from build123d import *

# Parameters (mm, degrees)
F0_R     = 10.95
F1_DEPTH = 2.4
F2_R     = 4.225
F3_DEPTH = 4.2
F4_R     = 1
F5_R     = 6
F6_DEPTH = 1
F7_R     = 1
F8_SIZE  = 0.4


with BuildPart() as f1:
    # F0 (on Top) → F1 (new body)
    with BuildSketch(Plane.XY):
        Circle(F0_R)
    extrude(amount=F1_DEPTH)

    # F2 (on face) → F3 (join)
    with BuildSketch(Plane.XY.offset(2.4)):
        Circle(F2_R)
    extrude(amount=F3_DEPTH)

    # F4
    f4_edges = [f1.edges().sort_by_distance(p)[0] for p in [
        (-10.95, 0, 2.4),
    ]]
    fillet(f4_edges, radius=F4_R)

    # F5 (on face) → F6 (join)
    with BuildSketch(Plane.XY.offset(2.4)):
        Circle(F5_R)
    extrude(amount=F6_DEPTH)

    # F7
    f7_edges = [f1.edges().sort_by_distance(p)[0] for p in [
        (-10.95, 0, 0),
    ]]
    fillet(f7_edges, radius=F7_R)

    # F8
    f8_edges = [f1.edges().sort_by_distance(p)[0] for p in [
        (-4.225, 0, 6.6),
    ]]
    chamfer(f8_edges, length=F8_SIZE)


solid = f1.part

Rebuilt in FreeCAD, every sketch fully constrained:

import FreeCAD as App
import Part
import Sketcher
Q = App.Units.Quantity


def edges_at(feature, points):
    """Names of the edges that pass closest to the given points."""
    edges = feature.Shape.Edges
    near = lambda p: min(range(len(edges)), key=lambda i: edges[i].distToShape(Part.Vertex(*p))[0])
    return sorted({f"Edge{near(p) + 1}" for p in points})

doc = App.newDocument("Part")
params = doc.addObject("Spreadsheet::Sheet", "Params")
for row, (alias, value) in enumerate([
    ("sketch1_diameter", "21.9 mm"),
    ("pad1_length", "2.4 mm"),
    ("sketch2_diameter", "8.45 mm"),
    ("pad2_length", "4.2 mm"),
    ("fillet_radius", "1 mm"),
    ("sketch3_diameter", "12 mm"),
    ("pad3_length", "1 mm"),
    ("fillet2_radius", "1 mm"),
    ("chamfer_size", "0.4 mm"),
], start=1):
    params.set(f"A{row}", alias)
    params.set(f"B{row}", "=" + value)
    params.setAlias(f"B{row}", alias)

body = doc.addObject("PartDesign::Body", "Body")

# Sketch on XY plane
sketch1 = body.newObject("Sketcher::SketchObject", "Sketch")
sketch1.AttachmentSupport = (doc.getObject("XY_Plane"), [""])
sketch1.MapMode = "FlatFace"
sketch1.addGeometry(Part.Circle(App.Vector(0, 0, 0), App.Vector(0, 0, 1), 11), False)
sketch1.addConstraint([
    Sketcher.Constraint("Coincident", 0, 3, -1, 1),
    Sketcher.Constraint("Diameter", 0, Q("21.9 mm")),
])
sketch1.setExpression("Constraints[1]", "Params.sketch1_diameter")
pad1 = body.newObject("PartDesign::Pad", "Pad")
pad1.Profile = sketch1
pad1.setExpression("Length", "Params.pad1_length")

# Sketch on XY plane
sketch2 = body.newObject("Sketcher::SketchObject", "Sketch001")
sketch2.AttachmentSupport = (doc.getObject("XY_Plane"), [""])
sketch2.MapMode = "FlatFace"
sketch2.AttachmentOffset = App.Placement(App.Vector(0, 0, 2.4), App.Rotation())
sketch2.addGeometry(Part.Circle(App.Vector(0, 0, 0), App.Vector(0, 0, 1), 4.2), False)
sketch2.addConstraint([
    Sketcher.Constraint("Coincident", 0, 3, -1, 1),
    Sketcher.Constraint("Diameter", 0, Q("8.45 mm")),
])
sketch2.setExpression("Constraints[1]", "Params.sketch2_diameter")
pad2 = body.newObject("PartDesign::Pad", "Pad001")
pad2.Profile = sketch2
pad2.setExpression("Length", "Params.pad2_length")
doc.recompute()

fillet = body.newObject("PartDesign::Fillet", "Fillet")
fillet.Base = (pad2, edges_at(pad2, [(-10.95, 0, 2.4)]))
fillet.setExpression("Radius", "Params.fillet_radius")

# Sketch on XY plane
sketch3 = body.newObject("Sketcher::SketchObject", "Sketch002")
sketch3.AttachmentSupport = (doc.getObject("XY_Plane"), [""])
sketch3.MapMode = "FlatFace"
sketch3.AttachmentOffset = App.Placement(App.Vector(0, 0, 2.4), App.Rotation())
sketch3.addGeometry(Part.Circle(App.Vector(0, 0, 0), App.Vector(0, 0, 1), 6), False)
sketch3.addConstraint([
    Sketcher.Constraint("Coincident", 0, 3, -1, 1),
    Sketcher.Constraint("Diameter", 0, Q("12 mm")),
])
sketch3.setExpression("Constraints[1]", "Params.sketch3_diameter")
pad3 = body.newObject("PartDesign::Pad", "Pad002")
pad3.Profile = sketch3
pad3.setExpression("Length", "Params.pad3_length")
doc.recompute()

fillet2 = body.newObject("PartDesign::Fillet", "Fillet001")
fillet2.Base = (pad3, edges_at(pad3, [(-10.95, 0, 0)]))
fillet2.setExpression("Radius", "Params.fillet2_radius")
doc.recompute()

chamfer = body.newObject("PartDesign::Chamfer", "Chamfer")
chamfer.Base = (fillet2, edges_at(fillet2, [(-4.225, 0, 6.6)]))
chamfer.setExpression("Size", "Params.chamfer_size")

doc.recompute()
